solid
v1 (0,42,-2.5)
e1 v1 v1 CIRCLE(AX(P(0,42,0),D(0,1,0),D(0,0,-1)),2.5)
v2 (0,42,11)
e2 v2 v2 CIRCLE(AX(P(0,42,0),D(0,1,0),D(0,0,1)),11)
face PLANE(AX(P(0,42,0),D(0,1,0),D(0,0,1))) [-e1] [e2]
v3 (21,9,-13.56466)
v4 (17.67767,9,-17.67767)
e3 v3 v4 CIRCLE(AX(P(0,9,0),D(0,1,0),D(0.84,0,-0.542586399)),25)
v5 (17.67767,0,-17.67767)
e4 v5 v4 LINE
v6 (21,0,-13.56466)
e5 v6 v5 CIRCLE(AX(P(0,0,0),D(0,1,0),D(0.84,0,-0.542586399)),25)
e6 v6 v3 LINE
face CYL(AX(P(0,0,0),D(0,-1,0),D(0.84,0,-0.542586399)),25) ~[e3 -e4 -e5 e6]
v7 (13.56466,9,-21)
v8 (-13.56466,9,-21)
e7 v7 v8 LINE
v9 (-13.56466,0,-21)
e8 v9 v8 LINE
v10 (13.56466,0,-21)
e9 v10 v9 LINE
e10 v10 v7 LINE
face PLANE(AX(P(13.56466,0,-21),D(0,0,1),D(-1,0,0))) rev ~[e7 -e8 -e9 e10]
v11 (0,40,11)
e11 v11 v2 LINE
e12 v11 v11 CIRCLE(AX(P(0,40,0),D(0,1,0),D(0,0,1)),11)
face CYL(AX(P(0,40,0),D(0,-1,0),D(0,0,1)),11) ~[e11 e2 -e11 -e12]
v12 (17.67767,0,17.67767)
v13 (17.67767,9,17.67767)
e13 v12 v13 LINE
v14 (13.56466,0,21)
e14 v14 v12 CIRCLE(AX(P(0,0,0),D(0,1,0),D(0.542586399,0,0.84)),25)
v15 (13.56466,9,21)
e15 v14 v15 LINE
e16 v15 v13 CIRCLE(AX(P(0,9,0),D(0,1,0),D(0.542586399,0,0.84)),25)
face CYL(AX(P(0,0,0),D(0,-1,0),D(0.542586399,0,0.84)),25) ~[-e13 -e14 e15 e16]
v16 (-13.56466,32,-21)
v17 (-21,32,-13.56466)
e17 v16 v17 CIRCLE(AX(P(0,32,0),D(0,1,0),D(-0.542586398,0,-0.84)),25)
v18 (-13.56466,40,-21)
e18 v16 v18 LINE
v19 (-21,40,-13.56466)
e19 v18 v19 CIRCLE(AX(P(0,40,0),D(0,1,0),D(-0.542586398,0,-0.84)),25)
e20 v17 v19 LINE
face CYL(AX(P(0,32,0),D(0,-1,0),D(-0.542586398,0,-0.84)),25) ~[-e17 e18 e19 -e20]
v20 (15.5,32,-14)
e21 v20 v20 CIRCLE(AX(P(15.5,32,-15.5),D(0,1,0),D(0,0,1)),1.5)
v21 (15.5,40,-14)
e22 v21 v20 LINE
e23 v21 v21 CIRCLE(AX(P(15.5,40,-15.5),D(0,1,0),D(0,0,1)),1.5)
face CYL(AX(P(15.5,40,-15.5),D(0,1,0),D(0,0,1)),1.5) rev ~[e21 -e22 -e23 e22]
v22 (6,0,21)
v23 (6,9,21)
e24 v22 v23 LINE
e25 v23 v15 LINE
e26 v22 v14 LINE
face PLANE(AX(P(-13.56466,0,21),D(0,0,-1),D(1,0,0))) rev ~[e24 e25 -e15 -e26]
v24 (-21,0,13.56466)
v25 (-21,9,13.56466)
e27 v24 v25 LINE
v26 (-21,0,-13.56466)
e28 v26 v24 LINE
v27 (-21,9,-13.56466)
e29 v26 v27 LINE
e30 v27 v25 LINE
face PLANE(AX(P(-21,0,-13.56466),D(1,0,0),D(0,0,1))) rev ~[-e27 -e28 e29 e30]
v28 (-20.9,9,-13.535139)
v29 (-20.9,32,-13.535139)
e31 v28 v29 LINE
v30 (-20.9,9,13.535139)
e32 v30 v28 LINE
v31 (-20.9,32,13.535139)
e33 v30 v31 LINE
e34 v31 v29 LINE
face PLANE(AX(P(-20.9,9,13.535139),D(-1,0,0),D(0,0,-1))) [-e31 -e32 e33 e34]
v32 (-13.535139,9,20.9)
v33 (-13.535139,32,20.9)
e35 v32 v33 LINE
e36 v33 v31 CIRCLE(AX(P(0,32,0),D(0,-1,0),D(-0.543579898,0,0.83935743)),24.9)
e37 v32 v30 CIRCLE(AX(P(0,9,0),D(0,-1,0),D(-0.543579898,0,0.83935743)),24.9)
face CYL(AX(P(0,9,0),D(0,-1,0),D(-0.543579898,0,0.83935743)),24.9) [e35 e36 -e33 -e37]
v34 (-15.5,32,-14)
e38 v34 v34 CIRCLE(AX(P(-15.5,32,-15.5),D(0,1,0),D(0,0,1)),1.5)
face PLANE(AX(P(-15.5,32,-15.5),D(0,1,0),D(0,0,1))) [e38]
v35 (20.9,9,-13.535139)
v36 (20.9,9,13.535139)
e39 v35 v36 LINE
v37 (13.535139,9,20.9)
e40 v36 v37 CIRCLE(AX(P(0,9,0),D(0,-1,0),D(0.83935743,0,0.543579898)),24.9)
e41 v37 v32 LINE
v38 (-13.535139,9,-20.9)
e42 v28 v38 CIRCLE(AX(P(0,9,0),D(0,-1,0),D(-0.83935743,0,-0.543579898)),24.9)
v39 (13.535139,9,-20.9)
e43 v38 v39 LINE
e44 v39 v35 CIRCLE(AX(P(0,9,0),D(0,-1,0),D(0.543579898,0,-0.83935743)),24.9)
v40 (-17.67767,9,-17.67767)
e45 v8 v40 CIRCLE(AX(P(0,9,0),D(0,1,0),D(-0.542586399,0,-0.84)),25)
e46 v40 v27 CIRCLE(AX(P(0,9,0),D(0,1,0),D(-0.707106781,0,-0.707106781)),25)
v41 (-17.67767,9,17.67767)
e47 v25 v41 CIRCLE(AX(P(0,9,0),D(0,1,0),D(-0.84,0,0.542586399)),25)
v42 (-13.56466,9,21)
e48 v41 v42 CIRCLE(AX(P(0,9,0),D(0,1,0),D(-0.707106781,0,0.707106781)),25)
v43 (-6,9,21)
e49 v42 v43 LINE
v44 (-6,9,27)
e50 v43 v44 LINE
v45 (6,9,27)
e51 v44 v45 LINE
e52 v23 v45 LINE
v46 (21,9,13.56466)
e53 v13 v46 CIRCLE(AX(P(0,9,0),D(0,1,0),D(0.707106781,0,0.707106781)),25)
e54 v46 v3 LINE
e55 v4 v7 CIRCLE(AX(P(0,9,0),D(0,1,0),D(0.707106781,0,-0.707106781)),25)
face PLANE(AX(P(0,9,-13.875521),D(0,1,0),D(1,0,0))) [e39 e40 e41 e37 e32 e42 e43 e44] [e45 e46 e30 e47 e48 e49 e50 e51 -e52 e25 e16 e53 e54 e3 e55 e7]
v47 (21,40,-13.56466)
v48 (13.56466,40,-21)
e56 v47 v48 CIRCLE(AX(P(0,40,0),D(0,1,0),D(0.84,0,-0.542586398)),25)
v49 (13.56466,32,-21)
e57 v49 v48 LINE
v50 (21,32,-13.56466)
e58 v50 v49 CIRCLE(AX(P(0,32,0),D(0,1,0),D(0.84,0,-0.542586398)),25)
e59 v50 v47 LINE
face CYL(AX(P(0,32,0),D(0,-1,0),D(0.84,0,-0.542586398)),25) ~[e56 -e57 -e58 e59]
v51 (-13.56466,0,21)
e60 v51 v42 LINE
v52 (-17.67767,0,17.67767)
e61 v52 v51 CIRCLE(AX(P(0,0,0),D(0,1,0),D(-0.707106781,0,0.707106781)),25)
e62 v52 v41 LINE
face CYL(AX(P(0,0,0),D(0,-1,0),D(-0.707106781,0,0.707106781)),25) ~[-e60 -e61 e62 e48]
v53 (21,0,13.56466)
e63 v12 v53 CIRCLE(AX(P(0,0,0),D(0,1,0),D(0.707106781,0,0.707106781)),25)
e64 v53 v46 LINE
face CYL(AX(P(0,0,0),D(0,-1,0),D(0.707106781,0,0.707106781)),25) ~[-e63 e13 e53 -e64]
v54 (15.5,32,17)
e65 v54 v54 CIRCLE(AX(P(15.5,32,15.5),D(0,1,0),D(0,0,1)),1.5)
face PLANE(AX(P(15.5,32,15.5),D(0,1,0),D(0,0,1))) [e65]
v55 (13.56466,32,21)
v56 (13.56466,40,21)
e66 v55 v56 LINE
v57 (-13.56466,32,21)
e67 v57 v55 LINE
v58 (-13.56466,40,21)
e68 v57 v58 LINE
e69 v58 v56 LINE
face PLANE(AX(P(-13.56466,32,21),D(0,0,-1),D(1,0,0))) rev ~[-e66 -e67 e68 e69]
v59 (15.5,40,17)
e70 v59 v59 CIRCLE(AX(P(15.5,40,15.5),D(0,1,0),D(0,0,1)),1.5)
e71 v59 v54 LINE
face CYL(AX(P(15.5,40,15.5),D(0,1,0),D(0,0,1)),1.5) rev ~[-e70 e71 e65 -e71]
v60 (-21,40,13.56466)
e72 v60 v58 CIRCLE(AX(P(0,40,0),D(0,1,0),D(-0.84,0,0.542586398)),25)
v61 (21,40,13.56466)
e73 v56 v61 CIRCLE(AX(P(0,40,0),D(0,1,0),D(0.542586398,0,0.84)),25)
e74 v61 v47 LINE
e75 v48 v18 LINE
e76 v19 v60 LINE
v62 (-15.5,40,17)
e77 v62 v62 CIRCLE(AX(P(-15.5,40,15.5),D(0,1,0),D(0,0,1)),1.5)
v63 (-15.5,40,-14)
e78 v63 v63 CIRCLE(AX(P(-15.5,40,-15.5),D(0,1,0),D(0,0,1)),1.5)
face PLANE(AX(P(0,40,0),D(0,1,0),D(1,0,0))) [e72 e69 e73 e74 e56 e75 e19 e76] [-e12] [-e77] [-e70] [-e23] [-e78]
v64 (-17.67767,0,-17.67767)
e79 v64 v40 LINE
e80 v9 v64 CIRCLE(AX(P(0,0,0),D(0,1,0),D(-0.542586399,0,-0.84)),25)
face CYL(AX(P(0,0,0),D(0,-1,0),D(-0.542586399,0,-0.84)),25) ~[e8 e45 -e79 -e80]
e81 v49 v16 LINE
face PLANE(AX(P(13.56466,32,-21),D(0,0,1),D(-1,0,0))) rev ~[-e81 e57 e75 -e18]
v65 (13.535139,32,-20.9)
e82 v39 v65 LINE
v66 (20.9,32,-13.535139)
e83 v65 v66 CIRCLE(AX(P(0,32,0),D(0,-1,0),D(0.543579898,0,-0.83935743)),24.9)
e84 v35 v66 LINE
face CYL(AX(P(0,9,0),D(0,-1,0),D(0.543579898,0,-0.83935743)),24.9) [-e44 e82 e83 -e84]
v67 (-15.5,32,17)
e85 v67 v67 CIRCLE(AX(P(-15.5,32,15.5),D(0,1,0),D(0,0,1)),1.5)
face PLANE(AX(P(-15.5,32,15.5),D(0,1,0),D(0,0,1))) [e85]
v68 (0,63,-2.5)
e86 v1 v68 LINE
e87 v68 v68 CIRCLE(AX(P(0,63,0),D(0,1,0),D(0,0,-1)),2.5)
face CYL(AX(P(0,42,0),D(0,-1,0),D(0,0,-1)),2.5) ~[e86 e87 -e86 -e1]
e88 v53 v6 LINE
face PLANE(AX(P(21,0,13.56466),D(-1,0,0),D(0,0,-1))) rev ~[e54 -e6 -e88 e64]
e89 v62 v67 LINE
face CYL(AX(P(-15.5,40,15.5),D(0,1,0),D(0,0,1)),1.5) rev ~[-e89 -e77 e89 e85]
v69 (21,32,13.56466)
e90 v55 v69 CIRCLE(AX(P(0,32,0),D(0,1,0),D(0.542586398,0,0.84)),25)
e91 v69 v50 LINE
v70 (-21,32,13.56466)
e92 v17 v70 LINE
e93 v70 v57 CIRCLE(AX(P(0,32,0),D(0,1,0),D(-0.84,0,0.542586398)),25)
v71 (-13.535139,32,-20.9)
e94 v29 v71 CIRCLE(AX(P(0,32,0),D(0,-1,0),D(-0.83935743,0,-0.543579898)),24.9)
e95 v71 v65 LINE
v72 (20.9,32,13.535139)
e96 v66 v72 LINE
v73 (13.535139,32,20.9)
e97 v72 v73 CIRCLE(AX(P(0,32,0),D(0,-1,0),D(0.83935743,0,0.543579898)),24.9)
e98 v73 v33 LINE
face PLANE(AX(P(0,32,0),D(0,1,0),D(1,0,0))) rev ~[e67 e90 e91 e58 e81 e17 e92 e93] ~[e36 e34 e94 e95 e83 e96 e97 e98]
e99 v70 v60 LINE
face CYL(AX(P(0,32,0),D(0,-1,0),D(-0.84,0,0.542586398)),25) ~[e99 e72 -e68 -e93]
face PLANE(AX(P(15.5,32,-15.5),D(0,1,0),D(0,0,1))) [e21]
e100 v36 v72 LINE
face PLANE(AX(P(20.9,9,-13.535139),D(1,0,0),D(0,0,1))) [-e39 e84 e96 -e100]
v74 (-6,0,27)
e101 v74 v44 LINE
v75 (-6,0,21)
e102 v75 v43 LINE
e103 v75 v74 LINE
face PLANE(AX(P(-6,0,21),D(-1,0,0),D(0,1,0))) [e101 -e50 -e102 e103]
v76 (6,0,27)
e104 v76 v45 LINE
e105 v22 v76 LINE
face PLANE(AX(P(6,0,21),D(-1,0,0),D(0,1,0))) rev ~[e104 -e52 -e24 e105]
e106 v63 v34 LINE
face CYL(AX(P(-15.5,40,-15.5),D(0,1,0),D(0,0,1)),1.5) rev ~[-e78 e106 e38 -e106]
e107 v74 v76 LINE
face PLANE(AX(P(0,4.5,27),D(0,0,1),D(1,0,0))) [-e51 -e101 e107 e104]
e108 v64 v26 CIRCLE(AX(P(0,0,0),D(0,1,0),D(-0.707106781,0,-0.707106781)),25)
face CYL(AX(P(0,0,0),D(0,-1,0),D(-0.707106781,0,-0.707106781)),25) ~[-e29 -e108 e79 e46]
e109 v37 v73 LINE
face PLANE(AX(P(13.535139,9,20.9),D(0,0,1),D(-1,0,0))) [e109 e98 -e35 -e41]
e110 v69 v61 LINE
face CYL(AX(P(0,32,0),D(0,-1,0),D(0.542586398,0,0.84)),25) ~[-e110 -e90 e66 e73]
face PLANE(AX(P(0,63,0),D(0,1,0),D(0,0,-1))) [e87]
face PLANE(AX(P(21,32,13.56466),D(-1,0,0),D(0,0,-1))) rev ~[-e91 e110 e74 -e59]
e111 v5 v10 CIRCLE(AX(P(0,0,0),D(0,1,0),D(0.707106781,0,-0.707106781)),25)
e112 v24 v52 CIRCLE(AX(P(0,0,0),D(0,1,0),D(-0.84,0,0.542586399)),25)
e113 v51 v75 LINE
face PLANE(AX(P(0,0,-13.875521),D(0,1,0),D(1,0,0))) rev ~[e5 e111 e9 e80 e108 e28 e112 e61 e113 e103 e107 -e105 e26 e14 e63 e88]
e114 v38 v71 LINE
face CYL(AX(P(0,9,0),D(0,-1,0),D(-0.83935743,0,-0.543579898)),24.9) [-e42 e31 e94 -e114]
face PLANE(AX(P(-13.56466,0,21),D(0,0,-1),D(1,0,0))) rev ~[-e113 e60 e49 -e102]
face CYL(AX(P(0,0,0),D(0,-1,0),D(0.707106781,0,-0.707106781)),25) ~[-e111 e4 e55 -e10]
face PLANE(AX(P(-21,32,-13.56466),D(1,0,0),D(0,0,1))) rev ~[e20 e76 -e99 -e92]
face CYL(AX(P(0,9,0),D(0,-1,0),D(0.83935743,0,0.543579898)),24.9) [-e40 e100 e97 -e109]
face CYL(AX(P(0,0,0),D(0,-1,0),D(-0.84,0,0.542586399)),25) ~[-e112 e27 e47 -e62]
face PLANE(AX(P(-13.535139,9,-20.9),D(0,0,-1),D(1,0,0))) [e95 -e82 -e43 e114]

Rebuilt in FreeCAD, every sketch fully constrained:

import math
import FreeCAD as App
import Part
import Sketcher
Q = App.Units.Quantity


def add_polygon(sketch, points):
    """Adds a closed chain of lines whose ends are joined by coincident constraints."""
    first, n = sketch.GeometryCount, len(points)
    for a, b in zip(points, points[1:] + points[:1]):
        sketch.addGeometry(Part.LineSegment(App.Vector(*a, 0), App.Vector(*b, 0)), False)
    for i in range(n):
        sketch.addConstraint(Sketcher.Constraint("Coincident", first + i, 2, first + (i + 1) % n, 1))

doc = App.newDocument("Part")
body = doc.addObject("PartDesign::Body", "Body")

# Sketch on XZ plane
sketch1 = doc.addObject("Sketcher::SketchObject", "Sketch")
body.addObject(sketch1)
sketch1.AttachmentSupport = (doc.XZ_Plane, [""])
sketch1.MapMode = "FlatFace"
sketch1.addGeometry([
    Part.ArcOfCircle(Part.Circle(App.Vector(0, 0, 0), App.Vector(0, 0, 1), 25), math.radians(-135), math.radians(-122.86)),  # 0
    Part.ArcOfCircle(Part.Circle(App.Vector(0, 0, 0), App.Vector(0, 0, 1), 25), math.radians(-147.14), math.radians(-135)),  # 1
    Part.LineSegment(App.Vector(-21, -14, 0), App.Vector(-21, 14, 0)),  # 2
    Part.ArcOfCircle(Part.Circle(App.Vector(0, 0, 0), App.Vector(0, 0, 1), 25), math.radians(135), math.radians(147.14)),  # 3
    Part.ArcOfCircle(Part.Circle(App.Vector(0, 0, 0), App.Vector(0, 0, 1), 25), math.radians(122.86), math.radians(135)),  # 4
    Part.LineSegment(App.Vector(-14, 21, 0), App.Vector(14, 21, 0)),  # 5
    Part.ArcOfCircle(Part.Circle(App.Vector(0, 0, 0), App.Vector(0, 0, 1), 25), math.radians(45), math.radians(57.14)),  # 6
    Part.ArcOfCircle(Part.Circle(App.Vector(0, 0, 0), App.Vector(0, 0, 1), 25), math.radians(32.86), math.radians(45)),  # 7
    Part.LineSegment(App.Vector(21, 14, 0), App.Vector(21, -14, 0)),  # 8
    Part.ArcOfCircle(Part.Circle(App.Vector(0, 0, 0), App.Vector(0, 0, 1), 25), math.radians(-45), math.radians(-32.86)),  # 9
    Part.ArcOfCircle(Part.Circle(App.Vector(0, 0, 0), App.Vector(0, 0, 1), 25), math.radians(-57.14), math.radians(-45)),  # 10
    Part.LineSegment(App.Vector(14, -21, 0), App.Vector(-14, -21, 0)),  # 11
], False)
sketch1.addConstraint([
    Sketcher.Constraint("Tangent", 0, 1, 1, 2),
    Sketcher.Constraint("Coincident", 1, 1, 2, 1),
    Sketcher.Constraint("Coincident", 2, 2, 3, 2),
    Sketcher.Constraint("Tangent", 3, 1, 4, 2),
    Sketcher.Constraint("Coincident", 4, 1, 5, 1),
    Sketcher.Constraint("Coincident", 5, 2, 6, 2),
    Sketcher.Constraint("Tangent", 6, 1, 7, 2),
    Sketcher.Constraint("Coincident", 7, 1, 8, 1),
    Sketcher.Constraint("Coincident", 8, 2, 9, 2),
    Sketcher.Constraint("Tangent", 9, 1, 10, 2),
    Sketcher.Constraint("Coincident", 10, 1, 11, 1),
    Sketcher.Constraint("Coincident", 11, 2, 0, 2),
    Sketcher.Constraint("Vertical", 2),
    Sketcher.Constraint("Horizontal", 5),
    Sketcher.Constraint("Vertical", 8),
    Sketcher.Constraint("Horizontal", 11),
    Sketcher.Constraint("Coincident", 0, 3, -1, 1),
    Sketcher.Constraint("Coincident", 3, 3, -1, 1),
    Sketcher.Constraint("Coincident", 6, 3, -1, 1),
    Sketcher.Constraint("Coincident", 9, 3, -1, 1),
    Sketcher.Constraint("Equal", 0, 1),
    Sketcher.Constraint("Equal", 1, 3),
    Sketcher.Constraint("Equal", 3, 4),
    Sketcher.Constraint("Equal", 4, 6),
    Sketcher.Constraint("Equal", 6, 7),
    Sketcher.Constraint("Equal", 7, 9),
    Sketcher.Constraint("Equal", 9, 10),
    Sketcher.Constraint("Horizontal", 3, 1, 6, 1),
    Sketcher.Constraint("Horizontal", 2, 2, 7, 1),
    Sketcher.Constraint("Horizontal", 0, 1, 9, 1),
    Sketcher.Constraint("Vertical", 0, 1, 3, 1),
    Sketcher.Constraint("Vertical", 5, 2, 10, 1),
    Sketcher.Constraint("Equal", 11, 2),
    Sketcher.Constraint("Radius", 0, Q("25 mm")),
    Sketcher.Constraint("DistanceX", 1, 1, -1, 1, Q("21 mm")),
    Sketcher.Constraint("DistanceX", 0, 1, -1, 1, Q("17.67767 mm")),
])
pad1 = doc.addObject("PartDesign::Pad", "Pad")
body.addObject(pad1)
pad1.Profile = sketch1
pad1.Length = 9
pad1.Reversed = True

# Sketch on XY plane
sketch2 = doc.addObject("Sketcher::SketchObject", "Sketch001")
body.addObject(sketch2)
sketch2.AttachmentSupport = (doc.XY_Plane, [""])
sketch2.MapMode = "FlatFace"
sketch2.AttachmentOffset = App.Placement(App.Vector(0, 0, 21), App.Rotation())
add_polygon(sketch2, [(-6, 9), (-6, 0), (6, 0), (6, 9)])  # lines 0-3
sketch2.addConstraint([
    Sketcher.Constraint("Vertical", 0),
    Sketcher.Constraint("Horizontal", 1),
    Sketcher.Constraint("Vertical", 2),
    Sketcher.Constraint("Horizontal", 3),
    Sketcher.Constraint("Symmetric", 0, 2, 1, 2, -1, 1),
    Sketcher.Constraint("DistanceX", 1, 1, 1, 2, Q("12 mm")),
    Sketcher.Constraint("DistanceY", 0, 2, 0, 1, Q("9 mm")),
])
pad2 = doc.addObject("PartDesign::Pad", "Pad001")
body.addObject(pad2)
pad2.Profile = sketch2
pad2.Length = 6

# Sketch on XZ plane
sketch3 = doc.addObject("Sketcher::SketchObject", "Sketch002")
body.addObject(sketch3)
sketch3.AttachmentSupport = (doc.XZ_Plane, [""])
sketch3.MapMode = "FlatFace"
sketch3.AttachmentOffset = App.Placement(App.Vector(0, 0, -9), App.Rotation())
sketch3.addGeometry([
    Part.LineSegment(App.Vector(-21, -14, 0), App.Vector(-21, 14, 0)),  # 0
    Part.ArcOfCircle(Part.Circle(App.Vector(0, 0, 0), App.Vector(0, 0, 1), 25), math.radians(123), math.radians(147)),  # 1
    Part.LineSegment(App.Vector(-14, 21, 0), App.Vector(14, 21, 0)),  # 2
    Part.ArcOfCircle(Part.Circle(App.Vector(0, 0, 0), App.Vector(0, 0, 1), 25), math.radians(33), math.radians(57)),  # 3
    Part.LineSegment(App.Vector(21, 14, 0), App.Vector(21, -14, 0)),  # 4
    Part.ArcOfCircle(Part.Circle(App.Vector(0, 0, 0), App.Vector(0, 0, 1), 25), math.radians(-57), math.radians(-33)),  # 5
    Part.LineSegment(App.Vector(14, -21, 0), App.Vector(-14, -21, 0)),  # 6
    Part.ArcOfCircle(Part.Circle(App.Vector(0, 0, 0), App.Vector(0, 0, 1), 25), math.radians(-147), math.radians(-123)),  # 7
], False)
sketch3.addConstraint([
    Sketcher.Constraint("Coincident", 0, 2, 1, 2),
    Sketcher.Constraint("Coincident", 1, 1, 2, 1),
    Sketcher.Constraint("Coincident", 2, 2, 3, 2),
    Sketcher.Constraint("Coincident", 3, 1, 4, 1),
    Sketcher.Constraint("Coincident", 4, 2, 5, 2),
    Sketcher.Constraint("Coincident", 5, 1, 6, 1),
    Sketcher.Constraint("Coincident", 6, 2, 7, 2),
    Sketcher.Constraint("Coincident", 7, 1, 0, 1),
    Sketcher.Constraint("Vertical", 0),
    Sketcher.Constraint("Horizontal", 2),
    Sketcher.Constraint("Vertical", 4),
    Sketcher.Constraint("Horizontal", 6),
    Sketcher.Constraint("Coincident", 1, 3, -1, 1),
    Sketcher.Constraint("Coincident", 3, 3, -1, 1),
    Sketcher.Constraint("Coincident", 5, 3, -1, 1),
    Sketcher.Constraint("Coincident", 7, 3, -1, 1),
    Sketcher.Constraint("Equal", 1, 3),
    Sketcher.Constraint("Equal", 3, 5),
    Sketcher.Constraint("Equal", 5, 7),
    Sketcher.Constraint("Horizontal", 0, 2, 3, 1),
    Sketcher.Constraint("Vertical", 2, 2, 5, 1),
    Sketcher.Constraint("Equal", 6, 0),
    Sketcher.Constraint("Radius", 1, Q("24.9 mm")),
    Sketcher.Constraint("DistanceX", 0, 2, -1, 1, Q("20.9 mm")),
])
pad3 = doc.addObject("PartDesign::Pad", "Pad002")
body.addObject(pad3)
pad3.Profile = sketch3
pad3.Length = 23
pad3.Reversed = True

# Sketch on XZ plane
sketch4 = doc.addObject("Sketcher::SketchObject", "Sketch003")
body.addObject(sketch4)
sketch4.AttachmentSupport = (doc.XZ_Plane, [""])
sketch4.MapMode = "FlatFace"
sketch4.AttachmentOffset = App.Placement(App.Vector(0, 0, -32), App.Rotation())
sketch4.addGeometry([
    Part.LineSegment(App.Vector(21, 14, 0), App.Vector(21, -14, 0)),  # 0
    Part.ArcOfCircle(Part.Circle(App.Vector(0, 0, 0), App.Vector(0, 0, 1), 25), math.radians(-57), math.radians(-33)),  # 1
    Part.LineSegment(App.Vector(14, -21, 0), App.Vector(-14, -21, 0)),  # 2
    Part.ArcOfCircle(Part.Circle(App.Vector(0, 0, 0), App.Vector(0, 0, 1), 25), math.radians(-147), math.radians(-123)),  # 3
    Part.LineSegment(App.Vector(-21, -14, 0), App.Vector(-21, 14, 0)),  # 4
    Part.ArcOfCircle(Part.Circle(App.Vector(0, 0, 0), App.Vector(0, 0, 1), 25), math.radians(123), math.radians(147)),  # 5
    Part.LineSegment(App.Vector(-14, 21, 0), App.Vector(14, 21, 0)),  # 6
    Part.ArcOfCircle(Part.Circle(App.Vector(0, 0, 0), App.Vector(0, 0, 1), 25), math.radians(33), math.radians(57)),  # 7
], False)
sketch4.addConstraint([
    Sketcher.Constraint("Coincident", 0, 2, 1, 2),
    Sketcher.Constraint("Coincident", 1, 1, 2, 1),
    Sketcher.Constraint("Coincident", 2, 2, 3, 2),
    Sketcher.Constraint("Coincident", 3, 1, 4, 1),
    Sketcher.Constraint("Coincident", 4, 2, 5, 2),
    Sketcher.Constraint("Coincident", 5, 1, 6, 1),
    Sketcher.Constraint("Coincident", 6, 2, 7, 2),
    Sketcher.Constraint("Coincident", 7, 1, 0, 1),
    Sketcher.Constraint("Vertical", 0),
    Sketcher.Constraint("Horizontal", 2),
    Sketcher.Constraint("Vertical", 4),
    Sketcher.Constraint("Horizontal", 6),
    Sketcher.Constraint("Coincident", 1, 3, -1, 1),
    Sketcher.Constraint("Coincident", 3, 3, -1, 1),
    Sketcher.Constraint("Coincident", 5, 3, -1, 1),
    Sketcher.Constraint("Coincident", 7, 3, -1, 1),
    Sketcher.Constraint("Equal", 1, 3),
    Sketcher.Constraint("Equal", 3, 5),
    Sketcher.Constraint("Equal", 5, 7),
    Sketcher.Constraint("Horizontal", 0, 2, 3, 1),
    Sketcher.Constraint("Vertical", 2, 2, 5, 1),
    Sketcher.Constraint("Equal", 6, 0),
    Sketcher.Constraint("Radius", 1, Q("25 mm")),
    Sketcher.Constraint("DistanceX", -1, 1, 0, 2, Q("21 mm")),
])
pad4 = doc.addObject("PartDesign::Pad", "Pad003")
body.addObject(pad4)
pad4.Profile = sketch4
pad4.Length = 8
pad4.Reversed = True

# Sketch on XZ plane
sketch5 = doc.addObject("Sketcher::SketchObject", "Sketch004")
body.addObject(sketch5)
sketch5.AttachmentSupport = (doc.XZ_Plane, [""])
sketch5.MapMode = "FlatFace"
sketch5.AttachmentOffset = App.Placement(App.Vector(0, 0, -40), App.Rotation())
sketch5.addGeometry([
    Part.Circle(App.Vector(-15.5, 15.5, 0), App.Vector(0, 0, 1), 1.5),
    Part.Circle(App.Vector(-15.5, -15.5, 0), App.Vector(0, 0, 1), 1.5),
    Part.Circle(App.Vector(15.5, -15.5, 0), App.Vector(0, 0, 1), 1.5),
    Part.Circle(App.Vector(15.5, 15.5, 0), App.Vector(0, 0, 1), 1.5),
], False)
sketch5.addConstraint([
    Sketcher.Constraint("Equal", 0, 1),
    Sketcher.Constraint("Equal", 1, 2),
    Sketcher.Constraint("Equal", 2, 3),
    Sketcher.Constraint("Symmetric", 0, 3, 2, 3, -1, 1),
    Sketcher.Constraint("Symmetric", 1, 3, 3, 3, -1, 1),
    Sketcher.Constraint("Symmetric", 1, 3, 2, 3, -2),
    Sketcher.Constraint("Diameter", 0, Q("3 mm")),
    Sketcher.Constraint("DistanceY", 1, 3, 0, 3, Q("31 mm")),
    Sketcher.Constraint("DistanceX", 1, 3, 2, 3, Q("31 mm")),
])
pocket1 = doc.addObject("PartDesign::Pocket", "Pocket")
body.addObject(pocket1)
pocket1.Profile = sketch5
pocket1.Length = 8
pocket1.Reversed = True

# Sketch on XZ plane
sketch6 = doc.addObject("Sketcher::SketchObject", "Sketch005")
body.addObject(sketch6)
sketch6.AttachmentSupport = (doc.XZ_Plane, [""])
sketch6.MapMode = "FlatFace"
sketch6.AttachmentOffset = App.Placement(App.Vector(0, 0, -40), App.Rotation())
sketch6.addGeometry(Part.Circle(App.Vector(0, 0, 0), App.Vector(0, 0, 1), 11), False)
sketch6.addConstraint([
    Sketcher.Constraint("Coincident", 0, 3, -1, 1),
    Sketcher.Constraint("Diameter", 0, Q("22 mm")),
])
pad5 = doc.addObject("PartDesign::Pad", "Pad004")
body.addObject(pad5)
pad5.Profile = sketch6
pad5.Length = 2
pad5.Reversed = True

# Sketch on XZ plane
sketch7 = doc.addObject("Sketcher::SketchObject", "Sketch006")
body.addObject(sketch7)
sketch7.AttachmentSupport = (doc.XZ_Plane, [""])
sketch7.MapMode = "FlatFace"
sketch7.AttachmentOffset = App.Placement(App.Vector(0, 0, -42), App.Rotation())
sketch7.addGeometry(Part.Circle(App.Vector(0, 0, 0), App.Vector(0, 0, 1), 2.5), False)
sketch7.addConstraint([
    Sketcher.Constraint("Coincident", 0, 3, -1, 1),
    Sketcher.Constraint("Diameter", 0, Q("5 mm")),
])
pad6 = doc.addObject("PartDesign::Pad", "Pad005")
body.addObject(pad6)
pad6.Profile = sketch7
pad6.Length = 21
pad6.Reversed = True

doc.recompute()
